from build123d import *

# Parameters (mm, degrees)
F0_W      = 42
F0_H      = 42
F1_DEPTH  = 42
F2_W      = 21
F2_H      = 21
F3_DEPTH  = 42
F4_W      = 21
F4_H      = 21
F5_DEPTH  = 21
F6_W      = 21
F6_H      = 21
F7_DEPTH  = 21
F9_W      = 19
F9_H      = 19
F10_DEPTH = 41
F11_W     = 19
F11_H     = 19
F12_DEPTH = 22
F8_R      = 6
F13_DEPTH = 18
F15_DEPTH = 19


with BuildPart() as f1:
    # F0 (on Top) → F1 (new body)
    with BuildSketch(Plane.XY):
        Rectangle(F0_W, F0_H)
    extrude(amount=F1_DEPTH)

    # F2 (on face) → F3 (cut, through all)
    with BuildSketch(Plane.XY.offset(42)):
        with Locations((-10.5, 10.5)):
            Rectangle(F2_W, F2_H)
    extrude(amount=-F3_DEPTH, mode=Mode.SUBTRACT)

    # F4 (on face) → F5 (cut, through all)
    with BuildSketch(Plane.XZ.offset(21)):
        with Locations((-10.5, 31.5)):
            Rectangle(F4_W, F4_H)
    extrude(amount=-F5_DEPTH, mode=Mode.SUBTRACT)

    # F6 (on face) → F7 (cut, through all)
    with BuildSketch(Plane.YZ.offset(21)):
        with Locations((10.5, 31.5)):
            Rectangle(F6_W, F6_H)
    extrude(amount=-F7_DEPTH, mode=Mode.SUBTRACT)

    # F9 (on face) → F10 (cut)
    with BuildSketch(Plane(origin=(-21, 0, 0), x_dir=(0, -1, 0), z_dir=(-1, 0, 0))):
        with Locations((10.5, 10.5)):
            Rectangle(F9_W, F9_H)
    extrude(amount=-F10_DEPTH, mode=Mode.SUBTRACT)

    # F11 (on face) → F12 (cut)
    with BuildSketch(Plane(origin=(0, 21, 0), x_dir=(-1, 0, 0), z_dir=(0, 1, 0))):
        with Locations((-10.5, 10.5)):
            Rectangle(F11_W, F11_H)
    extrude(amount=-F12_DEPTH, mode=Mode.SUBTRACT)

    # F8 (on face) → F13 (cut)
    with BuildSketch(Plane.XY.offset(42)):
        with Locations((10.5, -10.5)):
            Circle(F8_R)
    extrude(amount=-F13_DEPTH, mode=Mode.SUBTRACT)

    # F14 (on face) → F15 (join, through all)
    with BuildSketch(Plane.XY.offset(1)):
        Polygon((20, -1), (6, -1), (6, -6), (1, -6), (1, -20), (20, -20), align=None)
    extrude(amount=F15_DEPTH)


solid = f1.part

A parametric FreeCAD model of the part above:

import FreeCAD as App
import Part
import Sketcher

V = App.Vector
Q = App.Units.Quantity


def add_polygon(sketch, points):
    """Adds a closed chain of lines whose ends are joined by coincident constraints."""
    first, n = sketch.GeometryCount, len(points)
    for a, b in zip(points, points[1:] + points[:1]):
        sketch.addGeometry(Part.LineSegment(App.Vector(*a, 0), App.Vector(*b, 0)), False)
    for i in range(n):
        sketch.addConstraint(Sketcher.Constraint("Coincident", first + i, 2, first + (i + 1) % n, 1))

doc = App.newDocument("Part")
body = doc.addObject("PartDesign::Body", "Body")

# Sketch on XY plane
sketch1 = body.newObject("Sketcher::SketchObject", "Sketch")
sketch1.AttachmentSupport = (doc.getObject("XY_Plane"), [""])
sketch1.MapMode = "FlatFace"
add_polygon(sketch1, [(-21, 21), (-21, -21), (21, -21), (21, 21)])  # lines 0-3
sketch1.addConstraint([
    Sketcher.Constraint("Vertical", 0),
    Sketcher.Constraint("Horizontal", 1),
    Sketcher.Constraint("Vertical", 2),
    Sketcher.Constraint("Horizontal", 3),
    Sketcher.Constraint("Symmetric", 0, 2, 2, 2, -1, 1),
    Sketcher.Constraint("Equal", 3, 0),
    Sketcher.Constraint("DistanceX", 1, 1, 1, 2, Q("42 mm")),
])
pad1 = body.newObject("PartDesign::Pad", "Pad")
pad1.Profile = sketch1
pad1.Length = 42

# Sketch on XY plane
sketch2 = body.newObject("Sketcher::SketchObject", "Sketch001")
sketch2.AttachmentSupport = (doc.getObject("XY_Plane"), [""])
sketch2.MapMode = "FlatFace"
sketch2.AttachmentOffset = App.Placement(V(0, 0, 42), App.Rotation())
add_polygon(sketch2, [(-21, 21), (-21, 0), (0, 0), (0, 21)])  # lines 0-3
sketch2.addConstraint([
    Sketcher.Constraint("Vertical", 0),
    Sketcher.Constraint("Horizontal", 1),
    Sketcher.Constraint("Vertical", 2),
    Sketcher.Constraint("Horizontal", 3),
    Sketcher.Constraint("Coincident", 1, 2, -1, 1),
    Sketcher.Constraint("Equal", 3, 0),
    Sketcher.Constraint("DistanceX", 1, 1, 1, 2, Q("21 mm")),
])
pocket1 = body.newObject("PartDesign::Pocket", "Pocket")
pocket1.Profile = sketch2
pocket1.Type = "ThroughAll"

# Sketch on XZ plane
sketch3 = body.newObject("Sketcher::SketchObject", "Sketch002")
sketch3.AttachmentSupport = (doc.getObject("XZ_Plane"), [""])
sketch3.MapMode = "FlatFace"
sketch3.AttachmentOffset = App.Placement(V(0, 0, 21), App.Rotation())
add_polygon(sketch3, [(-21, 42), (-21, 21), (0, 21), (0, 42)])  # lines 0-3
sketch3.addConstraint([
    Sketcher.Constraint("Vertical", 0),
    Sketcher.Constraint("Horizontal", 1),
    Sketcher.Constraint("Vertical", 2),
    Sketcher.Constraint("Horizontal", 3),
    Sketcher.Constraint("PointOnObject", 1, 2, -2),
    Sketcher.Constraint("Equal", 3, 0),
    Sketcher.Constraint("DistanceX", 1, 1, 1, 2, Q("21 mm")),
    Sketcher.Constraint("DistanceY", -1, 1, 0, 2, Q("21 mm")),
])
pocket2 = body.newObject("PartDesign::Pocket", "Pocket001")
pocket2.Profile = sketch3
pocket2.Type = "ThroughAll"

# Sketch on YZ plane
sketch4 = body.newObject("Sketcher::SketchObject", "Sketch003")
sketch4.AttachmentSupport = (doc.getObject("YZ_Plane"), [""])
sketch4.MapMode = "FlatFace"
sketch4.AttachmentOffset = App.Placement(V(0, 0, 21), App.Rotation())
add_polygon(sketch4, [(0, 42), (0, 21), (21, 21), (21, 42)])  # lines 0-3
sketch4.addConstraint([
    Sketcher.Constraint("Vertical", 0),
    Sketcher.Constraint("Horizontal", 1),
    Sketcher.Constraint("Vertical", 2),
    Sketcher.Constraint("Horizontal", 3),
    Sketcher.Constraint("PointOnObject", 0, 2, -2),
    Sketcher.Constraint("Equal", 3, 0),
    Sketcher.Constraint("DistanceX", 1, 1, 1, 2, Q("21 mm")),
    Sketcher.Constraint("DistanceY", -1, 1, 0, 2, Q("21 mm")),
])
pocket3 = body.newObject("PartDesign::Pocket", "Pocket002")
pocket3.Profile = sketch4
pocket3.Type = "ThroughAll"

# Sketch on YZ plane
sketch5 = body.newObject("Sketcher::SketchObject", "Sketch004")
sketch5.AttachmentSupport = (doc.getObject("YZ_Plane"), [""])
sketch5.MapMode = "FlatFace"
sketch5.AttachmentOffset = App.Placement(V(0, 0, -21), App.Rotation())
add_polygon(sketch5, [(-1, 20), (-1, 1), (-20, 1), (-20, 20)])  # lines 0-3
sketch5.addConstraint([
    Sketcher.Constraint("Vertical", 0),
    Sketcher.Constraint("Horizontal", 1),
    Sketcher.Constraint("Vertical", 2),
    Sketcher.Constraint("Horizontal", 3),
    Sketcher.Constraint("Equal", 3, 0),
    Sketcher.Constraint("DistanceX", 1, 2, 1, 1, Q("19 mm")),
    Sketcher.Constraint("DistanceX", 0, 2, -1, 1, Q("1 mm")),
    Sketcher.Constraint("DistanceY", -1, 1, 0, 2, Q("1 mm")),
])
pocket4 = body.newObject("PartDesign::Pocket", "Pocket003")
pocket4.Profile = sketch5
pocket4.Length = 41
pocket4.Reversed = True

# Sketch on XZ plane
sketch6 = body.newObject("Sketcher::SketchObject", "Sketch005")
sketch6.AttachmentSupport = (doc.getObject("XZ_Plane"), [""])
sketch6.MapMode = "FlatFace"
sketch6.AttachmentOffset = App.Placement(V(0, 0, -21), App.Rotation())
add_polygon(sketch6, [(20, 20), (20, 1), (1, 1), (1, 20)])  # lines 0-3
sketch6.addConstraint([
    Sketcher.Constraint("Vertical", 0),
    Sketcher.Constraint("Horizontal", 1),
    Sketcher.Constraint("Vertical", 2),
    Sketcher.Constraint("Horizontal", 3),
    Sketcher.Constraint("Equal", 3, 0),
    Sketcher.Constraint("DistanceX", 1, 2, 1, 1, Q("19 mm")),
    Sketcher.Constraint("DistanceX", -1, 1, 0, 2, Q("20 mm")),
    Sketcher.Constraint("DistanceY", -1, 1, 0, 2, Q("1 mm")),
])
pocket5 = body.newObject("PartDesign::Pocket", "Pocket004")
pocket5.Profile = sketch6
pocket5.Length = 22
pocket5.Reversed = True

# Sketch on XY plane
sketch7 = body.newObject("Sketcher::SketchObject", "Sketch006")
sketch7.AttachmentSupport = (doc.getObject("XY_Plane"), [""])
sketch7.MapMode = "FlatFace"
sketch7.AttachmentOffset = App.Placement(V(0, 0, 42), App.Rotation())
sketch7.addGeometry(Part.Circle(V(10, -10, 0), V(0, 0, 1), 6), False)
sketch7.addConstraint([
    Sketcher.Constraint("Diameter", 0, Q("12 mm")),
    Sketcher.Constraint("DistanceX", -1, 1, 0, 3, Q("10.5 mm")),
    Sketcher.Constraint("DistanceY", 0, 3, -1, 1, Q("10.5 mm")),
])
pocket6 = body.newObject("PartDesign::Pocket", "Pocket005")
pocket6.Profile = sketch7
pocket6.Length = 18

# Sketch on XY plane
sketch8 = body.newObject("Sketcher::SketchObject", "Sketch007")
sketch8.AttachmentSupport = (doc.getObject("XY_Plane"), [""])
sketch8.MapMode = "FlatFace"
sketch8.AttachmentOffset = App.Placement(V(0, 0, 1), App.Rotation())
add_polygon(sketch8, [(20, -1), (6, -1), (6, -6), (1, -6), (1, -20), (20, -20)])  # lines 0-5
sketch8.addConstraint([
    Sketcher.Constraint("Horizontal", 0),
    Sketcher.Constraint("Vertical", 1),
    Sketcher.Constraint("Horizontal", 2),
    Sketcher.Constraint("Vertical", 3),
    Sketcher.Constraint("Horizontal", 4),
    Sketcher.Constraint("Vertical", 5),
    Sketcher.Constraint("Equal", 2, 1),
    Sketcher.Constraint("Equal", 0, 3),
    Sketcher.Constraint("DistanceX", 0, 2, 0, 1, Q("14 mm")),
    Sketcher.Constraint("DistanceX", 2, 2, 2, 1, Q("5 mm")),
    Sketcher.Constraint("DistanceX", -1, 1, 0, 2, Q("6 mm")),
    Sketcher.Constraint("DistanceY", 0, 2, -1, 1, Q("1 mm")),
])
pad2 = body.newObject("PartDesign::Pad", "Pad001")
pad2.Profile = sketch8
pad2.Type = "UpToLast"

doc.recompute()
